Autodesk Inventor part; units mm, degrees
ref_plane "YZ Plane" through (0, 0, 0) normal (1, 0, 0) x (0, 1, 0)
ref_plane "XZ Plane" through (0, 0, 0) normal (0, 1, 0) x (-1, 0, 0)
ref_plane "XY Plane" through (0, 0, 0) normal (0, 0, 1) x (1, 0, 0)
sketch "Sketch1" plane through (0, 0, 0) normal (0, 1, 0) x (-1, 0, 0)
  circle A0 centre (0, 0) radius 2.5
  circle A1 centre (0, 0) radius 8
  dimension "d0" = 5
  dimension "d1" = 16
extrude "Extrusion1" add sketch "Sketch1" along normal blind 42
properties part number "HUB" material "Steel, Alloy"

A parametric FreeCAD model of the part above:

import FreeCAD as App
import Part
import Sketcher
Q = App.Units.Quantity

doc = App.newDocument("Part")
params = doc.addObject("Spreadsheet::Sheet", "Params")
for row, (alias, value) in enumerate([
    ("sketch1_diameter", "16 mm"),
    ("sketch1_diameter2", "5 mm"),
    ("pad1_length", "42 mm"),
], start=1):
    params.set(f"A{row}", alias)
    params.set(f"B{row}", "=" + value)
    params.setAlias(f"B{row}", alias)

body = doc.addObject("PartDesign::Body", "Body")

sketch1 = doc.addObject("Sketcher::SketchObject", "Sketch")
body.addObject(sketch1)
sketch1.AttachmentSupport = (doc.XZ_Plane, [""])
sketch1.MapMode = "FlatFace"
sketch1.addGeometry([
    Part.Circle(App.Vector(0, 0, 0), App.Vector(0, 0, 1), 8),
    Part.Circle(App.Vector(0, 0, 0), App.Vector(0, 0, 1), 2.5),
], False)
sketch1.addConstraint([
    Sketcher.Constraint("Coincident", 0, 3, -1, 1),
    Sketcher.Constraint("Coincident", 1, 3, -1, 1),
    Sketcher.Constraint("Diameter", 0, Q("16 mm")),
    Sketcher.Constraint("Diameter", 1, Q("5 mm")),
])
sketch1.setExpression("Constraints[2]", "Params.sketch1_diameter")
sketch1.setExpression("Constraints[3]", "Params.sketch1_diameter2")
pad1 = doc.addObject("PartDesign::Pad", "Pad")
body.addObject(pad1)
pad1.Profile = sketch1
pad1.setExpression("Length", "Params.pad1_length")
pad1.Reversed = True

doc.recompute()
